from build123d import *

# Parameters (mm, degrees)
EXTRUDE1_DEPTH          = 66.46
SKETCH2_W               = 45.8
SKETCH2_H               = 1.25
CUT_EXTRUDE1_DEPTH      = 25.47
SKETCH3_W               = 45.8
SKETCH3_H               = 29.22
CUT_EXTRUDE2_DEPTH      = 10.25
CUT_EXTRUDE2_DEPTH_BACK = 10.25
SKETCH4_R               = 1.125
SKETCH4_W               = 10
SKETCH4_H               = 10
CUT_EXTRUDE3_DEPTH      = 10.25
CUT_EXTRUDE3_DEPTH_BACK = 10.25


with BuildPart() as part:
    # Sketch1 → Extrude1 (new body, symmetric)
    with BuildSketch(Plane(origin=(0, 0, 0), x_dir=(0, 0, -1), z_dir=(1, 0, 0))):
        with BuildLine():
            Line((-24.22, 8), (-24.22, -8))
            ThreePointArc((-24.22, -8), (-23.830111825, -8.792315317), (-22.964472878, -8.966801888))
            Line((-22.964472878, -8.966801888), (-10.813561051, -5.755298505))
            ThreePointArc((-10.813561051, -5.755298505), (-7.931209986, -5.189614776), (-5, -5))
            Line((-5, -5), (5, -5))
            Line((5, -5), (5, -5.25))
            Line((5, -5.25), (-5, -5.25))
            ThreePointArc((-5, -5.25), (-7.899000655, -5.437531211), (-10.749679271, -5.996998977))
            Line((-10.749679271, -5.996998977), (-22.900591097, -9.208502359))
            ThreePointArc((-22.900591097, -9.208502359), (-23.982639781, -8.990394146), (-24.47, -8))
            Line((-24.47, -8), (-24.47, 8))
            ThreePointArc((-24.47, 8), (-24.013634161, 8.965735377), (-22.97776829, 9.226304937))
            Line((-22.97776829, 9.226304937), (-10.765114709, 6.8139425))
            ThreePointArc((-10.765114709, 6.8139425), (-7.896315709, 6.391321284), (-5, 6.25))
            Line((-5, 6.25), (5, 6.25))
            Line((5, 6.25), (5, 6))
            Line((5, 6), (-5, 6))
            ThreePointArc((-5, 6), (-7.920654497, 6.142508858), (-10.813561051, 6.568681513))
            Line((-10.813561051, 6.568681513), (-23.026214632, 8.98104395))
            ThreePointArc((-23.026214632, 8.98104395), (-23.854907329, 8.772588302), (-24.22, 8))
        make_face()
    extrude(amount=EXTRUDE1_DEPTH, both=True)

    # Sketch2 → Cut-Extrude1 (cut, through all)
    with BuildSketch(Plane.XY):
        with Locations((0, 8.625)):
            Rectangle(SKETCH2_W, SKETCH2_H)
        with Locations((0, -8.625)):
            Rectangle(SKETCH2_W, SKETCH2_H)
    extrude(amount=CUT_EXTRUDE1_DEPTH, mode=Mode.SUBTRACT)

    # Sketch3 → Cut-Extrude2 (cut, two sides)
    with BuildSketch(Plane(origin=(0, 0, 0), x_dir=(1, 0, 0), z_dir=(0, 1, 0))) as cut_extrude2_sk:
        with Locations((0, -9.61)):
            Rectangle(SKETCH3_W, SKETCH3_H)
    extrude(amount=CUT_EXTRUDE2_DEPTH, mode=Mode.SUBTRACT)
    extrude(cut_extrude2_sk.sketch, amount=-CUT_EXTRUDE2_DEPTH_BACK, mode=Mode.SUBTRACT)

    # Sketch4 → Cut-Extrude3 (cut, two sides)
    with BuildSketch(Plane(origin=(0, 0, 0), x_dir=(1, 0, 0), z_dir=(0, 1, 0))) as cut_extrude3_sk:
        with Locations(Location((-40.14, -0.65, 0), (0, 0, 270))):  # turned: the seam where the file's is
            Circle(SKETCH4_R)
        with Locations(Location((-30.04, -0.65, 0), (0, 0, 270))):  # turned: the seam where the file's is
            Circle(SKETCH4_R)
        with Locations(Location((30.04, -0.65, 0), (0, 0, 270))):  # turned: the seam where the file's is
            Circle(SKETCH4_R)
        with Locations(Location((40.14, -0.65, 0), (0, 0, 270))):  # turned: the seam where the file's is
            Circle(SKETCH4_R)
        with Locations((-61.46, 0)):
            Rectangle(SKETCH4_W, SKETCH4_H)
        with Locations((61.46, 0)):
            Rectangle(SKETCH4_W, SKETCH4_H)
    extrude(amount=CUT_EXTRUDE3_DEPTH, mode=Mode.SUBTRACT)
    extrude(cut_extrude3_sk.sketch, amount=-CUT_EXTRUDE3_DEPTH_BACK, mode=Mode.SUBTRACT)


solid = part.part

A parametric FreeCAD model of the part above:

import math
import FreeCAD as App
import Part
import Sketcher
from FreeCAD import Vector

doc = App.newDocument("Part")
params = doc.addObject("Spreadsheet::Sheet", "Params")
for row, (alias, value) in enumerate([
    ("sketch1_radius", "1 mm"),
    ("sketch1_radius2", "30 mm"),
    ("sketch1_width", "16 mm"),
    ("sketch1_height", "10 mm"),
    ("sketch1_radius3", "29.75 mm"),
    ("pad1_length", "132.92 mm"),
    ("sketch2_width", "45.8 mm"),
    ("sketch2_height", "1.25 mm"),
    ("sketch3_width", "45.8 mm"),
    ("sketch3_height", "29.22 mm"),
    ("sketch4_diameter", "2.25 mm"),
    ("sketch4_width", "10 mm"),
], start=1):
    params.set(f"A{row}", alias)
    params.set(f"B{row}", "=" + value)
    params.setAlias(f"B{row}", alias)

body = doc.addObject("PartDesign::Body", "Body")

# Sketch on YZ plane
sketch1 = body.newObject("Sketcher::SketchObject", "Sketch")
sketch1.AttachmentSupport = (doc.getObject("YZ_Plane"), [""])
sketch1.MapMode = "FlatFace"
sketch1.addGeometry([
    Part.LineSegment(Vector(-8, 24.22, 0), Vector(8, 24.22, 0)),  # 0
    Part.ArcOfCircle(Part.Circle(Vector(8, 23.22, 0), Vector(0, 0, 1), 1), math.radians(-11.173777), math.radians(90)),  # 1
    Part.LineSegment(Vector(8.981044, 23.026215, 0), Vector(6.568682, 10.813561, 0)),  # 2
    Part.ArcOfCircle(Part.Circle(Vector(36, 5, 0), Vector(0, 0, 1), 30), math.radians(168.826223), math.radians(180)),  # 3
    Part.LineSegment(Vector(6, 5, 0), Vector(6, -5, 0)),  # 4
    Part.LineSegment(Vector(6, -5, 0), Vector(6.25, -5, 0)),  # 5
    Part.LineSegment(Vector(6.25, -5, 0), Vector(6.25, 5, 0)),  # 6
    Part.ArcOfCircle(Part.Circle(Vector(36, 5, 0), Vector(0, 0, 1), 29.75), math.radians(168.826223), math.radians(180)),  # 7
    Part.LineSegment(Vector(6.813942, 10.765115, 0), Vector(9.226305, 22.977768, 0)),  # 8
    Part.ArcOfCircle(Part.Circle(Vector(8, 23.22, 0), Vector(0, 0, 1), 1.25), math.radians(-11.173777), math.radians(90)),  # 9
    Part.LineSegment(Vector(8, 24.47, 0), Vector(-8, 24.47, 0)),  # 10
    Part.ArcOfCircle(Part.Circle(Vector(-8, 23.22, 0), Vector(0, 0, 1), 1.25), math.radians(90), math.radians(194.804822)),  # 11
    Part.LineSegment(Vector(-9.208502, 22.900591, 0), Vector(-5.996999, 10.749679, 0)),  # 12
    Part.ArcOfCircle(Part.Circle(Vector(-27.751248, 5, 0), Vector(0, 0, 1), 22.501248), math.radians(0), math.radians(14.804822)),  # 13
    Part.LineSegment(Vector(-5.25, 5, 0), Vector(-5.25, -5, 0)),  # 14
    Part.LineSegment(Vector(-5.25, -5, 0), Vector(-5, -5, 0)),  # 15
    Part.LineSegment(Vector(-5, -5, 0), Vector(-5, 5, 0)),  # 16
    Part.ArcOfCircle(Part.Circle(Vector(-27.751249, 5, 0), Vector(0, 0, 1), 22.751249), math.radians(0), math.radians(14.804822)),  # 17
    Part.LineSegment(Vector(-5.755299, 10.813561, 0), Vector(-8.966802, 22.964473, 0)),  # 18
    Part.ArcOfCircle(Part.Circle(Vector(-8, 23.22, 0), Vector(0, 0, 1), 1), math.radians(90), math.radians(194.804822)),  # 19
], False)
sketch1.addConstraint([
    Sketcher.Constraint("Tangent", 0, 2, 1, 2),
    Sketcher.Constraint("Tangent", 1, 1, 2, 1),
    Sketcher.Constraint("Tangent", 2, 2, 3, 1),
    Sketcher.Constraint("Tangent", 3, 2, 4, 1),
    Sketcher.Constraint("Coincident", 4, 2, 5, 1),
    Sketcher.Constraint("Coincident", 5, 2, 6, 1),
    Sketcher.Constraint("Tangent", 6, 2, 7, 2),
    Sketcher.Constraint("Tangent", 7, 1, 8, 1),
    Sketcher.Constraint("Tangent", 8, 2, 9, 1),
    Sketcher.Constraint("Tangent", 9, 2, 10, 1),
    Sketcher.Constraint("Tangent", 10, 2, 11, 1),
    Sketcher.Constraint("Tangent", 11, 2, 12, 1),
    Sketcher.Constraint("Tangent", 12, 2, 13, 2),
    Sketcher.Constraint("Tangent", 13, 1, 14, 1),
    Sketcher.Constraint("Coincident", 14, 2, 15, 1),
    Sketcher.Constraint("Coincident", 15, 2, 16, 1),
    Sketcher.Constraint("Tangent", 16, 2, 17, 1),
    Sketcher.Constraint("Tangent", 17, 2, 18, 1),
    Sketcher.Constraint("Tangent", 18, 2, 19, 2),
    Sketcher.Constraint("Tangent", 19, 1, 0, 1),
    Sketcher.Constraint("Horizontal", 0),
    Sketcher.Constraint("Vertical", 4),
    Sketcher.Constraint("Horizontal", 5),
    Sketcher.Constraint("Vertical", 6),
    Sketcher.Constraint("Horizontal", 10),
    Sketcher.Constraint("Vertical", 14),
    Sketcher.Constraint("Horizontal", 15),
    Sketcher.Constraint("Vertical", 16),
    Sketcher.Constraint("Coincident", 7, 3, 3, 3),
    Sketcher.Constraint("Coincident", 9, 3, 1, 3),
    Sketcher.Constraint("Coincident", 17, 3, 13, 3),
    Sketcher.Constraint("Coincident", 19, 3, 11, 3),
    Sketcher.Constraint("Equal", 9, 11),
    Sketcher.Constraint("Parallel", 2, 8),
    Sketcher.Constraint("Parallel", 12, 18),
    Sketcher.Constraint("Horizontal", 7, 3, 13, 3),
    Sketcher.Constraint("Horizontal", 5, 2, 14, 2),
    Sketcher.Constraint("Horizontal", 2, 2, 17, 2),
    Sketcher.Constraint("Radius", 1, 1.0),
    Sketcher.Constraint("Radius", 3, 30.0),
    Sketcher.Constraint("DistanceX", 0, 1, 0, 2, 16.0),
    Sketcher.Constraint("DistanceY", 4, 2, 4, 1, 10.0),
    Sketcher.Constraint("Radius", 7, 29.75),
    Sketcher.Constraint("DistanceX", -1, 1, 1, 3, 8.0),
    Sketcher.Constraint("DistanceX", -1, 1, 3, 3, 36.0),
    Sketcher.Constraint("DistanceY", -1, 1, 3, 3, 5.0),
    Sketcher.Constraint("DistanceX", 15, 2, -1, 1, 5.0),
    Sketcher.Constraint("DistanceY", -1, 1, 1, 3, 23.22),
])
sketch1.setExpression("Constraints[38]", "Params.sketch1_radius")
sketch1.setExpression("Constraints[39]", "Params.sketch1_radius2")
sketch1.setExpression("Constraints[40]", "Params.sketch1_width")
sketch1.setExpression("Constraints[41]", "Params.sketch1_height")
sketch1.setExpression("Constraints[42]", "Params.sketch1_radius3")
pad1 = body.newObject("PartDesign::Pad", "Pad")
pad1.Profile = sketch1
pad1.setExpression("Length", "Params.pad1_length")
pad1.Midplane = True

# Sketch on XY plane
sketch2 = body.newObject("Sketcher::SketchObject", "Sketch001")
sketch2.AttachmentSupport = (doc.getObject("XY_Plane"), [""])
sketch2.MapMode = "FlatFace"
sketch2.addGeometry([
    Part.LineSegment(Vector(-22.9, 9.25, 0), Vector(-22.9, 8, 0)),  # 0
    Part.LineSegment(Vector(-22.9, 8, 0), Vector(22.9, 8, 0)),  # 1
    Part.LineSegment(Vector(22.9, 8, 0), Vector(22.9, 9.25, 0)),  # 2
    Part.LineSegment(Vector(22.9, 9.25, 0), Vector(-22.9, 9.25, 0)),  # 3
    Part.LineSegment(Vector(-22.9, -8, 0), Vector(-22.9, -9.25, 0)),  # 4
    Part.LineSegment(Vector(-22.9, -9.25, 0), Vector(22.9, -9.25, 0)),  # 5
    Part.LineSegment(Vector(22.9, -9.25, 0), Vector(22.9, -8, 0)),  # 6
    Part.LineSegment(Vector(22.9, -8, 0), Vector(-22.9, -8, 0)),  # 7
], False)
sketch2.addConstraint([
    Sketcher.Constraint("Coincident", 0, 2, 1, 1),
    Sketcher.Constraint("Coincident", 1, 2, 2, 1),
    Sketcher.Constraint("Coincident", 2, 2, 3, 1),
    Sketcher.Constraint("Coincident", 3, 2, 0, 1),
    Sketcher.Constraint("Coincident", 4, 2, 5, 1),
    Sketcher.Constraint("Coincident", 5, 2, 6, 1),
    Sketcher.Constraint("Coincident", 6, 2, 7, 1),
    Sketcher.Constraint("Coincident", 7, 2, 4, 1),
    Sketcher.Constraint("Vertical", 0),
    Sketcher.Constraint("Horizontal", 1),
    Sketcher.Constraint("Vertical", 2),
    Sketcher.Constraint("Horizontal", 3),
    Sketcher.Constraint("Vertical", 4),
    Sketcher.Constraint("Horizontal", 5),
    Sketcher.Constraint("Vertical", 6),
    Sketcher.Constraint("Horizontal", 7),
    Sketcher.Constraint("Symmetric", 2, 2, 4, 2, -1, 1),
    Sketcher.Constraint("Symmetric", 0, 2, 6, 2, -1, 1),
    Sketcher.Constraint("Vertical", 3, 2, 4, 2),
    Sketcher.Constraint("DistanceX", 1, 1, 1, 2, 45.8),
    Sketcher.Constraint("DistanceY", -1, 1, 0, 2, 8.0),
    Sketcher.Constraint("DistanceY", 0, 2, 0, 1, 1.25),
])
sketch2.setExpression("Constraints[19]", "Params.sketch2_width")
sketch2.setExpression("Constraints[21]", "Params.sketch2_height")
pocket1 = body.newObject("PartDesign::Pocket", "Pocket")
pocket1.Profile = sketch2
pocket1.Type = "ThroughAll"
pocket1.Reversed = True

# Sketch on XZ plane
sketch3 = body.newObject("Sketcher::SketchObject", "Sketch002")
sketch3.AttachmentSupport = (doc.getObject("XZ_Plane"), [""])
sketch3.MapMode = "FlatFace"
sketch3.addGeometry([
    Part.LineSegment(Vector(-22.9, -5, 0), Vector(-22.9, 24.22, 0)),
    Part.LineSegment(Vector(-22.9, 24.22, 0), Vector(22.9, 24.22, 0)),
    Part.LineSegment(Vector(22.9, 24.22, 0), Vector(22.9, -5, 0)),
    Part.LineSegment(Vector(22.9, -5, 0), Vector(-22.9, -5, 0)),
], False)
sketch3.addConstraint([
    Sketcher.Constraint("Coincident", 0, 2, 1, 1),
    Sketcher.Constraint("Coincident", 1, 2, 2, 1),
    Sketcher.Constraint("Coincident", 2, 2, 3, 1),
    Sketcher.Constraint("Coincident", 3, 2, 0, 1),
    Sketcher.Constraint("Vertical", 0),
    Sketcher.Constraint("Horizontal", 1),
    Sketcher.Constraint("Vertical", 2),
    Sketcher.Constraint("Horizontal", 3),
    Sketcher.Constraint("DistanceX", 1, 1, 1, 2, 45.8),
    Sketcher.Constraint("DistanceY", 2, 2, -1, 1, 5.0),
    Sketcher.Constraint("DistanceY", 0, 1, 0, 2, 29.22),
    Sketcher.Constraint("DistanceX", 0, 2, -1, 1, 22.9),
])
sketch3.setExpression("Constraints[8]", "Params.sketch3_width")
sketch3.setExpression("Constraints[10]", "Params.sketch3_height")
pocket2 = body.newObject("PartDesign::Pocket", "Pocket001")
pocket2.Profile = sketch3
pocket2.Type = "ThroughAll"
pocket2.Midplane = True

# Sketch on XZ plane
sketch4 = body.newObject("Sketcher::SketchObject", "Sketch003")
sketch4.AttachmentSupport = (doc.getObject("XZ_Plane"), [""])
sketch4.MapMode = "FlatFace"
sketch4.addGeometry([
    Part.Circle(Vector(-40.14, 0.65, 0), Vector(0, 0, 1), 1.125),  # 0
    Part.Circle(Vector(-30.04, 0.65, 0), Vector(0, 0, 1), 1.125),  # 1
    Part.Circle(Vector(30.04, 0.65, 0), Vector(0, 0, 1), 1.125),  # 2
    Part.Circle(Vector(40.14, 0.65, 0), Vector(0, 0, 1), 1.125),  # 3
    Part.LineSegment(Vector(-66.46, -5, 0), Vector(-66.46, 5, 0)),  # 4
    Part.LineSegment(Vector(-66.46, 5, 0), Vector(-56.46, 5, 0)),  # 5
    Part.LineSegment(Vector(-56.46, 5, 0), Vector(-56.46, -5, 0)),  # 6
    Part.LineSegment(Vector(-56.46, -5, 0), Vector(-66.46, -5, 0)),  # 7
    Part.LineSegment(Vector(56.46, -5, 0), Vector(56.46, 5, 0)),  # 8
    Part.LineSegment(Vector(56.46, 5, 0), Vector(66.46, 5, 0)),  # 9
    Part.LineSegment(Vector(66.46, 5, 0), Vector(66.46, -5, 0)),  # 10
    Part.LineSegment(Vector(66.46, -5, 0), Vector(56.46, -5, 0)),  # 11
], False)
sketch4.addConstraint([
    Sketcher.Constraint("Coincident", 4, 2, 5, 1),
    Sketcher.Constraint("Coincident", 5, 2, 6, 1),
    Sketcher.Constraint("Coincident", 6, 2, 7, 1),
    Sketcher.Constraint("Coincident", 7, 2, 4, 1),
    Sketcher.Constraint("Coincident", 8, 2, 9, 1),
    Sketcher.Constraint("Coincident", 9, 2, 10, 1),
    Sketcher.Constraint("Coincident", 10, 2, 11, 1),
    Sketcher.Constraint("Coincident", 11, 2, 8, 1),
    Sketcher.Constraint("Vertical", 4),
    Sketcher.Constraint("Horizontal", 5),
    Sketcher.Constraint("Vertical", 6),
    Sketcher.Constraint("Horizontal", 7),
    Sketcher.Constraint("Vertical", 8),
    Sketcher.Constraint("Horizontal", 9),
    Sketcher.Constraint("Vertical", 10),
    Sketcher.Constraint("Horizontal", 11),
    Sketcher.Constraint("Equal", 0, 1),
    Sketcher.Constraint("Equal", 1, 2),
    Sketcher.Constraint("Equal", 2, 3),
    Sketcher.Constraint("Symmetric", 6, 2, 8, 2, -1, 1),
    Sketcher.Constraint("Symmetric", 4, 2, 10, 2, -1, 1),
    Sketcher.Constraint("Symmetric", 1, 3, 2, 3, -2),
    Sketcher.Constraint("Symmetric", 0, 3, 3, 3, -2),
    Sketcher.Constraint("Horizontal", 0, 3, 1, 3),
    Sketcher.Constraint("Horizontal", 5, 2, 8, 2),
    Sketcher.Constraint("Equal", 11, 4),
    Sketcher.Constraint("Diameter", 0, 2.25),
    Sketcher.Constraint("DistanceX", 5, 1, 5, 2, 10.0),
    Sketcher.Constraint("DistanceX", 0, 3, 1, 3, 10.1),
    Sketcher.Constraint("DistanceX", 4, 2, 2, 3, 96.5),
    Sketcher.Constraint("DistanceX", 0, 3, -1, 1, 40.14),
    Sketcher.Constraint("DistanceY", -1, 1, 0, 3, 0.65),
])
sketch4.setExpression("Constraints[26]", "Params.sketch4_diameter")
sketch4.setExpression("Constraints[27]", "Params.sketch4_width")
pocket3 = body.newObject("PartDesign::Pocket", "Pocket002")
pocket3.Profile = sketch4
pocket3.Type = "ThroughAll"
pocket3.Midplane = True

doc.recompute()
